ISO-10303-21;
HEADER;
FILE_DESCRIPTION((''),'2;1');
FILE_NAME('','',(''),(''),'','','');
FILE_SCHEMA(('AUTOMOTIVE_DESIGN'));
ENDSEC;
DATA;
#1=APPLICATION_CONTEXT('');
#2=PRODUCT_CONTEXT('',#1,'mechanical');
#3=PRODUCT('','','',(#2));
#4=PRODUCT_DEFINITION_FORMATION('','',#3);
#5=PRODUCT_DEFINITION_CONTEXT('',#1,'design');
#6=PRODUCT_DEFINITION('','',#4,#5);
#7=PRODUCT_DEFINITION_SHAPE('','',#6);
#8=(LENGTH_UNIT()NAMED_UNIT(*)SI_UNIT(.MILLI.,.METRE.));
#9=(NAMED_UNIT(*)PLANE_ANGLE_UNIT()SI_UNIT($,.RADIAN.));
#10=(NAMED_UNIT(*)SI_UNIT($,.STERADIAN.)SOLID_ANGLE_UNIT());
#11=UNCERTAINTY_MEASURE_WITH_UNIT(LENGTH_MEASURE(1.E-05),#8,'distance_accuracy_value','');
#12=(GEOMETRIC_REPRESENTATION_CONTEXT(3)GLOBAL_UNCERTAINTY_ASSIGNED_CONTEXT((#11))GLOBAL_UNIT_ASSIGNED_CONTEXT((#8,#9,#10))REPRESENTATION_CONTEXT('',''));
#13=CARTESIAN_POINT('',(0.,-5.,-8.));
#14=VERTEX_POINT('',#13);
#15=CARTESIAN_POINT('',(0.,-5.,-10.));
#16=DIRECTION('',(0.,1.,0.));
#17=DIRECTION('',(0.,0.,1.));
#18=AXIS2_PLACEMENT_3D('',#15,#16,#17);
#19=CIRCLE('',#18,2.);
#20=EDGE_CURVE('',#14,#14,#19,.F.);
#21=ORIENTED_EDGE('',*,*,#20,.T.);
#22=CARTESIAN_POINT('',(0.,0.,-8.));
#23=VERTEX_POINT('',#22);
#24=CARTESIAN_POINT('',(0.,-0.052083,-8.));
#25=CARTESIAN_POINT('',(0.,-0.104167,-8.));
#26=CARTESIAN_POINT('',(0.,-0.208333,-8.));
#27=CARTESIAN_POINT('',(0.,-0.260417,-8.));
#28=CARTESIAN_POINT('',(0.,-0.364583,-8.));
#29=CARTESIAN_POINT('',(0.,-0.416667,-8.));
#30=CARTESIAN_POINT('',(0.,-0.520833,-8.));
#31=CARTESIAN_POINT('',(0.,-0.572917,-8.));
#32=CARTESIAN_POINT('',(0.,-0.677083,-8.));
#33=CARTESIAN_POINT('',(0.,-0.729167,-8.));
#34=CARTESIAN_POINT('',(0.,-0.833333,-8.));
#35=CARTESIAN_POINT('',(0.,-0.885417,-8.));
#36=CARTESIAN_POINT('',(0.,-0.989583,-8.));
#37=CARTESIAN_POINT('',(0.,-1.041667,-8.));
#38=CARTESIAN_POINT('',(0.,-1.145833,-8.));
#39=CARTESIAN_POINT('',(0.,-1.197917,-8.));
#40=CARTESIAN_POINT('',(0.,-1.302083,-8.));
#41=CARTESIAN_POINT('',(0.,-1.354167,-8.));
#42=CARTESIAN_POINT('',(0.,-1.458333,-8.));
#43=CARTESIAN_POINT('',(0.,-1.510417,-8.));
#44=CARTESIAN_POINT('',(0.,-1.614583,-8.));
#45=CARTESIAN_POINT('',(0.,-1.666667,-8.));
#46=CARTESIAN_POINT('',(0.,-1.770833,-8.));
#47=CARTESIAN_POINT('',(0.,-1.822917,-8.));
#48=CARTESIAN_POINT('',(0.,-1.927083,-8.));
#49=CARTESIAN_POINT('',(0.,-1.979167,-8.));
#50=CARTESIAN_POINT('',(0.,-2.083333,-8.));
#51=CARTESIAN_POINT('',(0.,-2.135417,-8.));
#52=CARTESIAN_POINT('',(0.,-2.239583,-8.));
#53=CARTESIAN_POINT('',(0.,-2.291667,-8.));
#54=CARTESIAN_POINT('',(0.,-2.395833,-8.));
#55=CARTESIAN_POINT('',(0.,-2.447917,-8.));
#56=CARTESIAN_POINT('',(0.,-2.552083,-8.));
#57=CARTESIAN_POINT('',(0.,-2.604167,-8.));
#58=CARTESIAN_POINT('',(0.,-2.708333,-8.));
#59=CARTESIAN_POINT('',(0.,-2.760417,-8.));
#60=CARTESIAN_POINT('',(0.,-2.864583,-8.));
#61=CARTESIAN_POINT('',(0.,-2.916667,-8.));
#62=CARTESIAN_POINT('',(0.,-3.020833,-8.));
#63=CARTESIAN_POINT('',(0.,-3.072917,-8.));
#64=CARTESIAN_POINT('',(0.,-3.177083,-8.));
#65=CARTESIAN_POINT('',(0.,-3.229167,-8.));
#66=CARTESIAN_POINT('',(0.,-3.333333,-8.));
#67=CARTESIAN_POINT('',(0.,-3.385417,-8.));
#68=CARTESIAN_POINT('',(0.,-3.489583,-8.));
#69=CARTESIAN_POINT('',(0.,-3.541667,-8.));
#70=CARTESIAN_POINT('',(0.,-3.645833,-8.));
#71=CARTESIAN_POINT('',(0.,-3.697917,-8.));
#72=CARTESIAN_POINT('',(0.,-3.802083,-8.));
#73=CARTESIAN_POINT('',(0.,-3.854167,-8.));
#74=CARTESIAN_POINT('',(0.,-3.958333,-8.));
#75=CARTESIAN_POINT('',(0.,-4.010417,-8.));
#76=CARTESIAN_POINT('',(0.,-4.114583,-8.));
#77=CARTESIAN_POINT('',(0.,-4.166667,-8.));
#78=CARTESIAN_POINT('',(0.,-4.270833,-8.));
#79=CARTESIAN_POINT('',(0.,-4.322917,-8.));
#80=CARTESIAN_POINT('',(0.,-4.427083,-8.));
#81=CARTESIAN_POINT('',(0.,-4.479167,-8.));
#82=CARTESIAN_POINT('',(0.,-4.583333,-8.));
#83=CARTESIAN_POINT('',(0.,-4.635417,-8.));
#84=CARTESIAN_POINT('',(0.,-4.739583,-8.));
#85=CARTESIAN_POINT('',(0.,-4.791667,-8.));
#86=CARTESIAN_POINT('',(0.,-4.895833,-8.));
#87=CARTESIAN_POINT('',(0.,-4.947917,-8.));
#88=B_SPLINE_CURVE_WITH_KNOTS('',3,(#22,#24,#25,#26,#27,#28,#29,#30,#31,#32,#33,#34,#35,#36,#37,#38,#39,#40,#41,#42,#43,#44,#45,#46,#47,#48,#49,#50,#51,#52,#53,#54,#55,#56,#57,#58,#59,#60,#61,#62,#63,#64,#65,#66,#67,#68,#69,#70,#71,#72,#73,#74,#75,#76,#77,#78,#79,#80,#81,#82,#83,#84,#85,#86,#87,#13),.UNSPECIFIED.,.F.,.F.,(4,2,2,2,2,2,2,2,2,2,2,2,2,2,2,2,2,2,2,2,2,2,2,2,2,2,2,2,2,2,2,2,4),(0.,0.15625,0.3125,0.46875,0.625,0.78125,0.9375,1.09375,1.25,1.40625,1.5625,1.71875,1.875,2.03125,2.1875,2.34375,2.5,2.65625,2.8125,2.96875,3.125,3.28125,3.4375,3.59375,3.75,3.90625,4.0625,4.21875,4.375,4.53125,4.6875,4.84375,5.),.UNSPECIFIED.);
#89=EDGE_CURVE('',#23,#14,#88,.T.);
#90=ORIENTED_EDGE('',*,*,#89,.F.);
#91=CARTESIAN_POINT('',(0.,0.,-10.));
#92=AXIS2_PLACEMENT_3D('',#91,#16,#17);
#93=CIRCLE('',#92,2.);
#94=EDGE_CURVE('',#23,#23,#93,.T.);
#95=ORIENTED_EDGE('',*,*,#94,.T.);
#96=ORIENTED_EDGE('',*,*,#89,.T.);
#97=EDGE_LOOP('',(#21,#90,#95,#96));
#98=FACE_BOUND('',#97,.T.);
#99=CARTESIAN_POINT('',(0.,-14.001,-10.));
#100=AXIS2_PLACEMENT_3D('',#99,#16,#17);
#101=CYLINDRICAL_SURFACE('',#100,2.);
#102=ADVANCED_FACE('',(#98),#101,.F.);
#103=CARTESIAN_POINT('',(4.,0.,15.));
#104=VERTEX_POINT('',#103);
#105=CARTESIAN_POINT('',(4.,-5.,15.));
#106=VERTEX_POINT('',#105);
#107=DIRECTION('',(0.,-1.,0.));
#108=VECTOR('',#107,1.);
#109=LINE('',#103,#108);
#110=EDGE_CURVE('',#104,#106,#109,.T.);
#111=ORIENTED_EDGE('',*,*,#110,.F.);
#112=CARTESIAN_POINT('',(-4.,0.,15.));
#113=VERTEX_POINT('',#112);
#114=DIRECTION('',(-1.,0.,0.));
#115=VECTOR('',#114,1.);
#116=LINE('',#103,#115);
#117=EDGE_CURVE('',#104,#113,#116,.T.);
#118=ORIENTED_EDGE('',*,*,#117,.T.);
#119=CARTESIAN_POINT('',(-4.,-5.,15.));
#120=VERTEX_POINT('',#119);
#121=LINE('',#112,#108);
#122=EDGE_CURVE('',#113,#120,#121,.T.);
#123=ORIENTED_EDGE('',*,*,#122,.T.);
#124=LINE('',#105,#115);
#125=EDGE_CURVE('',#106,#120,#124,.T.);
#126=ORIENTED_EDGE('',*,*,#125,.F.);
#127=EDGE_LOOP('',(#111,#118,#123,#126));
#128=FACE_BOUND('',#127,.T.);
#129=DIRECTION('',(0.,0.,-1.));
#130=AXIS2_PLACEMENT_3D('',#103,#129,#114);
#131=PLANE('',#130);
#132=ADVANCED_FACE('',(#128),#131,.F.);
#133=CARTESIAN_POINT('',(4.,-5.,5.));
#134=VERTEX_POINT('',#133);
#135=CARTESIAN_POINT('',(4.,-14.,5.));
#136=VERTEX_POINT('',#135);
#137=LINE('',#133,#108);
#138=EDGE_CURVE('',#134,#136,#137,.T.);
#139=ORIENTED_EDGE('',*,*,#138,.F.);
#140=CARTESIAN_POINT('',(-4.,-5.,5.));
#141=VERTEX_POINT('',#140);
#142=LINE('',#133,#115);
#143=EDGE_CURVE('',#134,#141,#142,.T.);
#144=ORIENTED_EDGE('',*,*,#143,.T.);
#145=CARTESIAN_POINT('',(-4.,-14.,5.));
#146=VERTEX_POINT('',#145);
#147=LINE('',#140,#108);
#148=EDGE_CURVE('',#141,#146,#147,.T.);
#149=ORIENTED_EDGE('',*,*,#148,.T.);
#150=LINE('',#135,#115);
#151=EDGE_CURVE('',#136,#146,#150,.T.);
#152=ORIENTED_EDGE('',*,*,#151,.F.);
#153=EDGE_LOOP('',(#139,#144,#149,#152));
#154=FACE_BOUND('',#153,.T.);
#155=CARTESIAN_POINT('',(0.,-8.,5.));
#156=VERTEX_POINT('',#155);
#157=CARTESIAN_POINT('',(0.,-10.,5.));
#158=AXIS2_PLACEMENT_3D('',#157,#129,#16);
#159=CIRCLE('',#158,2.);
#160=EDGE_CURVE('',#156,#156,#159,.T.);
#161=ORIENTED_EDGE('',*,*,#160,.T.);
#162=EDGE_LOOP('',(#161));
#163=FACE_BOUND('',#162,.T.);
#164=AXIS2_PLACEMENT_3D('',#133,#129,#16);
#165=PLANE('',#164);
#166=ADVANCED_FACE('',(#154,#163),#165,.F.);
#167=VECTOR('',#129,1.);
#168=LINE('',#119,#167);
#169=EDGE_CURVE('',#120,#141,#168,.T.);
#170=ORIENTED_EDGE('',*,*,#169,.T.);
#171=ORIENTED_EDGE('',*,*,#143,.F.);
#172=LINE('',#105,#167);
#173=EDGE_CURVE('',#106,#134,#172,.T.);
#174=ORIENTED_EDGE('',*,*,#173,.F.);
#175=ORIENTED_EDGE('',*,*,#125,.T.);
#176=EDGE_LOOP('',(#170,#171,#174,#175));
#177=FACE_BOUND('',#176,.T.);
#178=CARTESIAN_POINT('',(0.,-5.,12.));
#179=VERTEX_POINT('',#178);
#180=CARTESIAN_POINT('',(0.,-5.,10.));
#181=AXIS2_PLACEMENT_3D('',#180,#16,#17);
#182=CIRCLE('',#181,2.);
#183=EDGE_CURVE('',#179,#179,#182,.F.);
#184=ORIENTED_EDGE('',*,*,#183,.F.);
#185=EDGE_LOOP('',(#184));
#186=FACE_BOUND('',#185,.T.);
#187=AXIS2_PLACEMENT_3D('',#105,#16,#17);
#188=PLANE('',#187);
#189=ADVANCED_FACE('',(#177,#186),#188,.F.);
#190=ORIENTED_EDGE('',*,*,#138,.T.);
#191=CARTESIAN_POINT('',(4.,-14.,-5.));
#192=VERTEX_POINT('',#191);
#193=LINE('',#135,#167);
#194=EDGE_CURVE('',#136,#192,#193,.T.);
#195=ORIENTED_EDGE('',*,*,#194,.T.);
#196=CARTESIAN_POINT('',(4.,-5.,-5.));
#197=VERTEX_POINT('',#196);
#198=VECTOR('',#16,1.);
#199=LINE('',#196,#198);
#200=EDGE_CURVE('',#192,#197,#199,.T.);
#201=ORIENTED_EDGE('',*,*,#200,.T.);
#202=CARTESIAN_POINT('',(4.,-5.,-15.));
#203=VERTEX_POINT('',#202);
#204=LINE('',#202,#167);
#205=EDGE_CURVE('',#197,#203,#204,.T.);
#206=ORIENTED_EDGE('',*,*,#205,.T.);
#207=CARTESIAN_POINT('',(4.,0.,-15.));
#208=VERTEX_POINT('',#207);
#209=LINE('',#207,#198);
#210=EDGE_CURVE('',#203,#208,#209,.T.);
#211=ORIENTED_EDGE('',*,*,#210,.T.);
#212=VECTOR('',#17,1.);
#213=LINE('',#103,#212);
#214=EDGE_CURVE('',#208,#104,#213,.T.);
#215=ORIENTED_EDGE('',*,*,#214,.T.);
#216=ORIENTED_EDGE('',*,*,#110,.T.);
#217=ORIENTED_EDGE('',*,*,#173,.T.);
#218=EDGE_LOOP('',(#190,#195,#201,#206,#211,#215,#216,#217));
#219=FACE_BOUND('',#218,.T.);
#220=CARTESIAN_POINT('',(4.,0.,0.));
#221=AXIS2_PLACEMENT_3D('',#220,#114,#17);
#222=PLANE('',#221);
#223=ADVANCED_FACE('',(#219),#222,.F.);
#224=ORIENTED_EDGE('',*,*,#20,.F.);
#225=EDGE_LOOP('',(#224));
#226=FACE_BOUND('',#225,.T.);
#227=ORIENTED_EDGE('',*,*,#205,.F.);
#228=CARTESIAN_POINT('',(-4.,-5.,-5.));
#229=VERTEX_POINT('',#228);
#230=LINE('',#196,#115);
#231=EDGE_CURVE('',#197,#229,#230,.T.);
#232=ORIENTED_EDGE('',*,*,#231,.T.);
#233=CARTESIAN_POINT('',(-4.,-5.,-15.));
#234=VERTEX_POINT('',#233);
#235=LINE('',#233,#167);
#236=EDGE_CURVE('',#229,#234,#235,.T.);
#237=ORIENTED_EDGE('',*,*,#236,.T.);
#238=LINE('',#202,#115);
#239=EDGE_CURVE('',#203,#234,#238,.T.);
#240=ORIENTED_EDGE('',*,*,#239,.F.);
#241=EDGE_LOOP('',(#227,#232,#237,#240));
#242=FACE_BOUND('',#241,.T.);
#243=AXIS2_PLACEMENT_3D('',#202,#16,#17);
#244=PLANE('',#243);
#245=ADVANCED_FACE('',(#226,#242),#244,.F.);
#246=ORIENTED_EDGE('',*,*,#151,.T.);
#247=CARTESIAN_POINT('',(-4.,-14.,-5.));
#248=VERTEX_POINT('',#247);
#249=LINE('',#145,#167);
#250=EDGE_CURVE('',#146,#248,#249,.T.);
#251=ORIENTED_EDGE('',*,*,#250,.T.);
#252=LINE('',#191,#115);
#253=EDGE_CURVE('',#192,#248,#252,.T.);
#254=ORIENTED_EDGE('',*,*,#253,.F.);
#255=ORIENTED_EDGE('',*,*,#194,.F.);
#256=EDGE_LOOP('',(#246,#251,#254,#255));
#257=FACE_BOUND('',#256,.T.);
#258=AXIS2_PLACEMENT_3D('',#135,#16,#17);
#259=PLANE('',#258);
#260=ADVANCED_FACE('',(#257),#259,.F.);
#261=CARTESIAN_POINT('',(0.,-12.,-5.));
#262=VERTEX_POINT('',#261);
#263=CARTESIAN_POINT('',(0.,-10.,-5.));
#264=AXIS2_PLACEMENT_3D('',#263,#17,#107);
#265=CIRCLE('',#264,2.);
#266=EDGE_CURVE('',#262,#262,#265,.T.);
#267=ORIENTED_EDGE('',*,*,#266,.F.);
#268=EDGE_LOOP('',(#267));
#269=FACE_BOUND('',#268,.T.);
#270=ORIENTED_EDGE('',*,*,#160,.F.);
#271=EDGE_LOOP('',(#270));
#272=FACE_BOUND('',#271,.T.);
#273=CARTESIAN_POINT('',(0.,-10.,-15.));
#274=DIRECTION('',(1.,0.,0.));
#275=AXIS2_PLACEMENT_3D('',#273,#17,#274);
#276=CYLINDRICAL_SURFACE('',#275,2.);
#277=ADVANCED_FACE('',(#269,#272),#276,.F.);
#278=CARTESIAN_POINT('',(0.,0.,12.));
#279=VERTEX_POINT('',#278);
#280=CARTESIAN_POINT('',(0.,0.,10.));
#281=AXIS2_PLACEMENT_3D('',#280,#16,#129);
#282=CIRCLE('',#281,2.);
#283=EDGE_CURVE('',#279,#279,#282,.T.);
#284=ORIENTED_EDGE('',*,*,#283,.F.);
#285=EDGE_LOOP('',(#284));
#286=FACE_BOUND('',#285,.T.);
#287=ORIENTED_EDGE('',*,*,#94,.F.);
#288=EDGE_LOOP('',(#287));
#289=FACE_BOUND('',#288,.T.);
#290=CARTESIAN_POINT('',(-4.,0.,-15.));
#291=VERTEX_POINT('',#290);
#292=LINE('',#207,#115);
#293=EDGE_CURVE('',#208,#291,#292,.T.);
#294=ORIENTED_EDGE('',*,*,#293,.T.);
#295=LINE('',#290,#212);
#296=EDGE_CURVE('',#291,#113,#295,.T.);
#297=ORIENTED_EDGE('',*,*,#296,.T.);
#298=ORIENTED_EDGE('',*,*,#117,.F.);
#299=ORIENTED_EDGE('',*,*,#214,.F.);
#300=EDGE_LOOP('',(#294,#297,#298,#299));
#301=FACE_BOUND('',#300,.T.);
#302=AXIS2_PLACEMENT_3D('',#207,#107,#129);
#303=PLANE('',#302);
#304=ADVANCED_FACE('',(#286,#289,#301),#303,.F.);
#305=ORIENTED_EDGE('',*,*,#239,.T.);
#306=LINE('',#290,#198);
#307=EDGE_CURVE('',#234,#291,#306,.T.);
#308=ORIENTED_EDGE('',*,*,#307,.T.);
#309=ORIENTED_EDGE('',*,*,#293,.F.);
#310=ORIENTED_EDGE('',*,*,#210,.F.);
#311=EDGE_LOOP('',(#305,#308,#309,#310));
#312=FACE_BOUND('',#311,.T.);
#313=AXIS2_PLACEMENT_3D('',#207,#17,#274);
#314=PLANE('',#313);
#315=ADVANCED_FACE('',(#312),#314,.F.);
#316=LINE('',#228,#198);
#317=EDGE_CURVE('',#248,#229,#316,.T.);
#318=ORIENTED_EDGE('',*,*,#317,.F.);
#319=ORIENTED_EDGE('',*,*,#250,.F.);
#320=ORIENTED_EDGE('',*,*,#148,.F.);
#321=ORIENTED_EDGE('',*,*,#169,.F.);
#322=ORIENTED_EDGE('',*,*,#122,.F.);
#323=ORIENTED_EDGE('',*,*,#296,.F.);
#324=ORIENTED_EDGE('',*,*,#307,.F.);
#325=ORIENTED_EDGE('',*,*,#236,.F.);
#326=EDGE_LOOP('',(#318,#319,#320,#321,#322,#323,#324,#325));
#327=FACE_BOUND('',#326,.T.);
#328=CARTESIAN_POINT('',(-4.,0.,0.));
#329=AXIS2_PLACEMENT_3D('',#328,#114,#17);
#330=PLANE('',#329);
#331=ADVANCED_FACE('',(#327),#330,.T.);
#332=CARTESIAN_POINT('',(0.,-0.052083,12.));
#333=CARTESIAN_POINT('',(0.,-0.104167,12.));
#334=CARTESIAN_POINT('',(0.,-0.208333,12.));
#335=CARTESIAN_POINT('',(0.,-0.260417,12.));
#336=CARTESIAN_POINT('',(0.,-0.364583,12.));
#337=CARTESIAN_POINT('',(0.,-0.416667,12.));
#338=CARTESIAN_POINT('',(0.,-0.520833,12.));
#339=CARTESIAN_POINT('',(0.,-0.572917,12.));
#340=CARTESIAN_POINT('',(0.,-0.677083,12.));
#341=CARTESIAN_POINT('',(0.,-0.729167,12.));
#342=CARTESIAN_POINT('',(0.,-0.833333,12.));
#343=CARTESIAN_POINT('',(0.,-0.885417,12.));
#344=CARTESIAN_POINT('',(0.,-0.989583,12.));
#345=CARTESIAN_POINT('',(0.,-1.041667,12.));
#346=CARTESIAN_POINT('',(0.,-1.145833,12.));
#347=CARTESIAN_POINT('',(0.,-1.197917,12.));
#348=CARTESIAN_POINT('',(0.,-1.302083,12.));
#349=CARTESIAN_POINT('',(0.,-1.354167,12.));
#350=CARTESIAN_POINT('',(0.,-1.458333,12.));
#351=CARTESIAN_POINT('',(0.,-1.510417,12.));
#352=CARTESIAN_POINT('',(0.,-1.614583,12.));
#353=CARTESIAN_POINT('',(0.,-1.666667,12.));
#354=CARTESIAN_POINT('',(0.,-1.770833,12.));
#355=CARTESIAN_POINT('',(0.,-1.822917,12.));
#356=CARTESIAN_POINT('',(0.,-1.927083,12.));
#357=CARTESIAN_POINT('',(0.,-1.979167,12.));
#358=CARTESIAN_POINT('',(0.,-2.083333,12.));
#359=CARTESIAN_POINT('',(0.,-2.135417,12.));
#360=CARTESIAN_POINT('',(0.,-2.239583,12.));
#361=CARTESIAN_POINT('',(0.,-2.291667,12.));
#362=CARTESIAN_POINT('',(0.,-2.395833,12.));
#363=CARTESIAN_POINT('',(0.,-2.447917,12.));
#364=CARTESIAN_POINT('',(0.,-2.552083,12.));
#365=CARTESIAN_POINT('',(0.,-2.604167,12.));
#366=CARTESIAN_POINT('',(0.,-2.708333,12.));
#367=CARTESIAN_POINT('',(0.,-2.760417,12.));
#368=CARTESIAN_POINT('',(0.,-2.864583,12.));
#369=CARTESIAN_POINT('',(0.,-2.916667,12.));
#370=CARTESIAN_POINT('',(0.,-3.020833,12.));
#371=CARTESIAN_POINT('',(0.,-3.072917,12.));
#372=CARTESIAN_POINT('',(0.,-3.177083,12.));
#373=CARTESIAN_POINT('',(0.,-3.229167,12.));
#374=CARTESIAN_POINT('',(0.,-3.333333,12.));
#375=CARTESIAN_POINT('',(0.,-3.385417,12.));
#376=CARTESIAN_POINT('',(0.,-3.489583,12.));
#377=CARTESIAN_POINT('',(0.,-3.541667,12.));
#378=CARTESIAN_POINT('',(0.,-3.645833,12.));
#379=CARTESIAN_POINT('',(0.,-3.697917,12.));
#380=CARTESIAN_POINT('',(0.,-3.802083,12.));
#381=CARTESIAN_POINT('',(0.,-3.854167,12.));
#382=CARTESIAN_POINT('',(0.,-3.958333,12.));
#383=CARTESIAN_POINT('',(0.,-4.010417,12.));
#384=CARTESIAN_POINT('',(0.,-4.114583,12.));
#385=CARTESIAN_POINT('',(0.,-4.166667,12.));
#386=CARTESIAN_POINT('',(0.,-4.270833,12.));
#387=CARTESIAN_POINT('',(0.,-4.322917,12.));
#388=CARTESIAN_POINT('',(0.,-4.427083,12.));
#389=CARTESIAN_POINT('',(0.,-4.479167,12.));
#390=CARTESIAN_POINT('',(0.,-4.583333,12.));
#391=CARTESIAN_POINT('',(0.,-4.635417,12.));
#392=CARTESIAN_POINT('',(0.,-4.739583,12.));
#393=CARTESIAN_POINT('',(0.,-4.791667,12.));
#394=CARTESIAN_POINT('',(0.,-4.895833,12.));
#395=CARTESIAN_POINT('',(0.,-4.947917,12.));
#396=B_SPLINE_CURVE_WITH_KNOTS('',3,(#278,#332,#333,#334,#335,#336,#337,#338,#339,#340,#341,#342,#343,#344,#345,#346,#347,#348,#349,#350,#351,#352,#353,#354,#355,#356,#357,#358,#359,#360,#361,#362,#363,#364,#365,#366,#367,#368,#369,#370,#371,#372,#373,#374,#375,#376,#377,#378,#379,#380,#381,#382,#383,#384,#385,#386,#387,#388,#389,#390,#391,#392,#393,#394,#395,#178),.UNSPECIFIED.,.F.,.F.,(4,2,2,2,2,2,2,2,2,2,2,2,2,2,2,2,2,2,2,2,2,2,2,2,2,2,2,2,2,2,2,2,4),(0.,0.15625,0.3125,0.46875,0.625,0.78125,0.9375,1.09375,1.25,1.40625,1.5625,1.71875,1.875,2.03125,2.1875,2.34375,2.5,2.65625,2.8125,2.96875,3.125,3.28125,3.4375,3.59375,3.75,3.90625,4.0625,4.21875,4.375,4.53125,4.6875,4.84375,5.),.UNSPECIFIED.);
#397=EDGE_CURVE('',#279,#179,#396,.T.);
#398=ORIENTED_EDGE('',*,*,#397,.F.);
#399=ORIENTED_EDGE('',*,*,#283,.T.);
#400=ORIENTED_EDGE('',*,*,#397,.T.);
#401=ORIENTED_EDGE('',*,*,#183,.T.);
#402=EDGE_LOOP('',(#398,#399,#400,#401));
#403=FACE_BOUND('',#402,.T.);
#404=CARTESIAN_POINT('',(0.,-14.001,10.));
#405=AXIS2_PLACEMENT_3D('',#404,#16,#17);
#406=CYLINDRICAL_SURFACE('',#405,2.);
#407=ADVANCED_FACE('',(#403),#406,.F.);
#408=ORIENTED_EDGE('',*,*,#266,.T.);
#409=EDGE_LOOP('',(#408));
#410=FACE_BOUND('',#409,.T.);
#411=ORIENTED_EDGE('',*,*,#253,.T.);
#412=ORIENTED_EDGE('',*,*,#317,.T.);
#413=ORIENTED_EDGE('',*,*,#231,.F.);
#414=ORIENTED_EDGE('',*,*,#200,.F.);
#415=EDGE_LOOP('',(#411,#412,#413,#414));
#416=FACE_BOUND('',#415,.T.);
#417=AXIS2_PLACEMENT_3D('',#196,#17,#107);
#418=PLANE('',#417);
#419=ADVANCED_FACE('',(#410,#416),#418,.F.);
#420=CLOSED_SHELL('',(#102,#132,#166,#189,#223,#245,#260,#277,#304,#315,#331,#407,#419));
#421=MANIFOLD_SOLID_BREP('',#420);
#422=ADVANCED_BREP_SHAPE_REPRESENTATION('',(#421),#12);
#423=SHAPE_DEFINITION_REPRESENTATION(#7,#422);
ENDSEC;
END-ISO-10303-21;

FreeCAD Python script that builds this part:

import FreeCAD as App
import Part
import Sketcher
Q = App.Units.Quantity


def add_polygon(sketch, points):
    """Adds a closed chain of lines whose ends are joined by coincident constraints."""
    first, n = sketch.GeometryCount, len(points)
    for a, b in zip(points, points[1:] + points[:1]):
        sketch.addGeometry(Part.LineSegment(App.Vector(*a, 0), App.Vector(*b, 0)), False)
    for i in range(n):
        sketch.addConstraint(Sketcher.Constraint("Coincident", first + i, 2, first + (i + 1) % n, 1))

doc = App.newDocument("Part")
params = doc.addObject("Spreadsheet::Sheet", "Params")
for row, (alias, value) in enumerate([
    ("sketch1_width", "5 mm"),
    ("sketch1_width2", "9 mm"),
    ("sketch1_height", "10 mm"),
    ("pad1_length", "8 mm"),
    ("sketch2_diameter", "4 mm"),
    ("sketch3_diameter", "4 mm"),
    ("sketch4_diameter", "4 mm"),
], start=1):
    params.set(f"A{row}", alias)
    params.set(f"B{row}", "=" + value)
    params.setAlias(f"B{row}", alias)

body = doc.addObject("PartDesign::Body", "Body")

sketch1 = body.newObject("Sketcher::SketchObject", "Sketch")
sketch1.AttachmentSupport = (doc.getObject("YZ_Plane"), [""])
sketch1.MapMode = "FlatFace"
add_polygon(sketch1, [(0, 15), (-5, 15), (-5, 5), (-14, 5), (-14, -5), (-5, -5), (-5, -15), (0, -15)])
sketch1.addConstraint([
    Sketcher.Constraint("Horizontal", 0),
    Sketcher.Constraint("Vertical", 1),
    Sketcher.Constraint("Horizontal", 2),
    Sketcher.Constraint("Vertical", 3),
    Sketcher.Constraint("Horizontal", 4),
    Sketcher.Constraint("Vertical", 5),
    Sketcher.Constraint("Horizontal", 6),
    Sketcher.Constraint("Vertical", 7),
    Sketcher.Constraint("Symmetric", 6, 2, 7, 2, -1, 1),
    Sketcher.Constraint("Symmetric", 1, 2, 4, 2, -1),
    Sketcher.Constraint("Equal", 1, 3),
    Sketcher.Constraint("DistanceX", 0, 2, 0, 1, Q("5 mm")),
    Sketcher.Constraint("DistanceX", 2, 2, 2, 1, Q("9 mm")),
    Sketcher.Constraint("DistanceY", 1, 2, 1, 1, Q("10 mm")),
])
sketch1.setExpression("Constraints[19]", "Params.sketch1_width")
sketch1.setExpression("Constraints[20]", "Params.sketch1_width2")
sketch1.setExpression("Constraints[21]", "Params.sketch1_height")
pad1 = body.newObject("PartDesign::Pad", "Pad")
pad1.Profile = sketch1
pad1.setExpression("Length", "Params.pad1_length")
pad1.Midplane = True

sketch2 = body.newObject("Sketcher::SketchObject", "Sketch001")
sketch2.AttachmentSupport = (doc.getObject("XZ_Plane"), [""])
sketch2.MapMode = "FlatFace"
sketch2.addGeometry(Part.Circle(App.Vector(0, -10, 0), App.Vector(0, 0, 1), 2), False)
sketch2.addConstraint([
    Sketcher.Constraint("PointOnObject", 0, 3, -2),
    Sketcher.Constraint("Diameter", 0, Q("4 mm")),
    Sketcher.Constraint("DistanceY", 0, 3, -1, 1, Q("10 mm")),
])
sketch2.setExpression("Constraints[1]", "Params.sketch2_diameter")
pocket1 = body.newObject("PartDesign::Pocket", "Pocket")
pocket1.Profile = sketch2
pocket1.Type = "UpToFirst"
pocket1.Reversed = True

sketch3 = body.newObject("Sketcher::SketchObject", "Sketch002")
sketch3.AttachmentSupport = (doc.getObject("XZ_Plane"), [""])
sketch3.MapMode = "FlatFace"
sketch3.addGeometry(Part.Circle(App.Vector(0, 10, 0), App.Vector(0, 0, 1), 2), False)
sketch3.addConstraint([
    Sketcher.Constraint("PointOnObject", 0, 3, -2),
    Sketcher.Constraint("Diameter", 0, Q("4 mm")),
    Sketcher.Constraint("DistanceY", -1, 1, 0, 3, Q("10 mm")),
])
sketch3.setExpression("Constraints[1]", "Params.sketch3_diameter")
pocket2 = body.newObject("PartDesign::Pocket", "Pocket001")
pocket2.Profile = sketch3
pocket2.Type = "UpToFirst"
pocket2.Reversed = True

sketch4 = body.newObject("Sketcher::SketchObject", "Sketch003")
sketch4.AttachmentSupport = (doc.getObject("XY_Plane"), [""])
sketch4.MapMode = "FlatFace"
sketch4.addGeometry(Part.Circle(App.Vector(0, -10, 0), App.Vector(0, 0, 1), 2), False)
sketch4.addConstraint([
    Sketcher.Constraint("PointOnObject", 0, 3, -2),
    Sketcher.Constraint("Diameter", 0, Q("4 mm")),
    Sketcher.Constraint("DistanceY", 0, 3, -1, 1, Q("10 mm")),
])
sketch4.setExpression("Constraints[1]", "Params.sketch4_diameter")
pocket3 = body.newObject("PartDesign::Pocket", "Pocket002")
pocket3.Profile = sketch4
pocket3.Type = "ThroughAll"
pocket3.Midplane = True

doc.recompute()
